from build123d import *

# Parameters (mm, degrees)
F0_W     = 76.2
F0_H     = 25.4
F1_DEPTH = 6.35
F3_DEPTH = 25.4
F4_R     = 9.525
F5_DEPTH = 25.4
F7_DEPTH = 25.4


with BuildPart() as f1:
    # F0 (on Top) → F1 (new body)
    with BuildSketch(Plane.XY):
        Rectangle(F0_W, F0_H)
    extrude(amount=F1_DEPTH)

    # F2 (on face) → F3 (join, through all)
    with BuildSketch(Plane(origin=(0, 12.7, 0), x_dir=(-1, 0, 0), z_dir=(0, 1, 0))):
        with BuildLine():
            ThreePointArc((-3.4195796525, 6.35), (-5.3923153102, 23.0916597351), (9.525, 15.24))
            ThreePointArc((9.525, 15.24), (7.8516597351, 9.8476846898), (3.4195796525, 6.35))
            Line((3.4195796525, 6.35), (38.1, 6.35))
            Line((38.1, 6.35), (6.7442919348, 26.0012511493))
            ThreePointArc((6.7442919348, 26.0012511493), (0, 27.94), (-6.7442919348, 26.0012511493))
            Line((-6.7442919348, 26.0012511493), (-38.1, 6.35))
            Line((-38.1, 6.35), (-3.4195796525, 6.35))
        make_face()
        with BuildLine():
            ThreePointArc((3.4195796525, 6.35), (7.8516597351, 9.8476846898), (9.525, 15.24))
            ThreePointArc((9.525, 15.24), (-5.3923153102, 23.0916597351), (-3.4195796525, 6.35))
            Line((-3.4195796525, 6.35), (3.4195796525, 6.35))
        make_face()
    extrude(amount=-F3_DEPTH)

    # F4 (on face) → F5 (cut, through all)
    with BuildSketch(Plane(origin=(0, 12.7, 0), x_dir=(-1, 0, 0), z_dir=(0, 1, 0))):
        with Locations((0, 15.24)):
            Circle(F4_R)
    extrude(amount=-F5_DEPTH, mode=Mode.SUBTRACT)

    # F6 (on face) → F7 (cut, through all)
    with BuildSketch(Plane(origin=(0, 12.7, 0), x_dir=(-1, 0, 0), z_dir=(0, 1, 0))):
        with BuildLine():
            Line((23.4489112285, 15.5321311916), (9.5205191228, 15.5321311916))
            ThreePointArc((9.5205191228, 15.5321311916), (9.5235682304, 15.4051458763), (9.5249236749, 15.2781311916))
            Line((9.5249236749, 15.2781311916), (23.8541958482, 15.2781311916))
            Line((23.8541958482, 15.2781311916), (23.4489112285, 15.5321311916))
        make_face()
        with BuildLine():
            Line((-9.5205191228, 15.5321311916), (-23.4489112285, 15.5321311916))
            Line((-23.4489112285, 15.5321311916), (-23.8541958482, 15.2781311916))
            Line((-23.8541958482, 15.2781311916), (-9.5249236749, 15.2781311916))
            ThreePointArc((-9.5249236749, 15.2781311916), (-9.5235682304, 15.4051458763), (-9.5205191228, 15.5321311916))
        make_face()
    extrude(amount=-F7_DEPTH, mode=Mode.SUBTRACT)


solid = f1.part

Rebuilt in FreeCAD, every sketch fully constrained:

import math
import FreeCAD as App
import Part
import Sketcher

V = App.Vector
Q = App.Units.Quantity

doc = App.newDocument("Part")
body = doc.addObject("PartDesign::Body", "Body")
body.AllowCompound = True

sketch1 = body.newObject("Sketcher::SketchObject", "Sketch")
sketch1.AttachmentSupport = (doc.getObject("XY_Plane"), [""])
sketch1.MapMode = "FlatFace"
sketch1.addGeometry(Part.LineSegment(V(-38.1, 12.7, 0), V(-38.1, -12.7, 0)), False)
sketch1.addGeometry(Part.LineSegment(V(-38.1, -12.7, 0), V(38.1, -12.7, 0)), False)
sketch1.addGeometry(Part.LineSegment(V(38.1, -12.7, 0), V(38.1, 12.7, 0)), False)
sketch1.addGeometry(Part.LineSegment(V(38.1, 12.7, 0), V(-38.1, 12.7, 0)), False)
sketch1.addConstraint(Sketcher.Constraint("Coincident", 0, 2, 1, 1))
sketch1.addConstraint(Sketcher.Constraint("Coincident", 1, 2, 2, 1))
sketch1.addConstraint(Sketcher.Constraint("Coincident", 2, 2, 3, 1))
sketch1.addConstraint(Sketcher.Constraint("Coincident", 3, 2, 0, 1))
sketch1.addConstraint(Sketcher.Constraint("Vertical", 0))
sketch1.addConstraint(Sketcher.Constraint("Horizontal", 1))
sketch1.addConstraint(Sketcher.Constraint("Vertical", 2))
sketch1.addConstraint(Sketcher.Constraint("Horizontal", 3))
sketch1.addConstraint(Sketcher.Constraint("Symmetric", 0, 2, 2, 2, -1, 1))
sketch1.addConstraint(Sketcher.Constraint("DistanceX", 1, 1, 1, 2, Q("3 in")))
sketch1.addConstraint(Sketcher.Constraint("DistanceY", 0, 2, 0, 1, Q("1 in")))
pad1 = body.newObject("PartDesign::Pad", "Pad")
pad1.Profile = sketch1
pad1.Length = Q("0.25 in")

sketch2 = body.newObject("Sketcher::SketchObject", "Sketch001")
sketch2.AttachmentSupport = (doc.getObject("XZ_Plane"), [""])
sketch2.MapMode = "FlatFace"
sketch2.AttachmentOffset = App.Placement(V(0, 0, -0.5 * 25.4), App.Rotation())
sketch2.addGeometry(Part.LineSegment(V(-38.1, 6.35, 0), V(-6.744292, 26.001251, 0)), False)
sketch2.addGeometry(Part.ArcOfCircle(Part.Circle(V(0, 15.24, 0), V(0, 0, 1), 12.7), math.radians(57.923803), math.radians(122.076197)), False)
sketch2.addGeometry(Part.LineSegment(V(6.744292, 26.001251, 0), V(38.1, 6.35, 0)), False)
sketch2.addGeometry(Part.LineSegment(V(38.1, 6.35, 0), V(-38.1, 6.35, 0)), False)
sketch2.addConstraint(Sketcher.Constraint("Tangent", 0, 2, 1, 2))
sketch2.addConstraint(Sketcher.Constraint("Tangent", 1, 1, 2, 1))
sketch2.addConstraint(Sketcher.Constraint("Coincident", 2, 2, 3, 1))
sketch2.addConstraint(Sketcher.Constraint("Coincident", 3, 2, 0, 1))
sketch2.addConstraint(Sketcher.Constraint("Horizontal", 3))
sketch2.addConstraint(Sketcher.Constraint("Symmetric", 0, 2, 1, 1, -2))
sketch2.addConstraint(Sketcher.Constraint("Radius", 1, Q("0.5 in")))
sketch2.addConstraint(Sketcher.Constraint("DistanceX", 3, 2, 3, 1, Q("3 in")))
sketch2.addConstraint(Sketcher.Constraint("DistanceY", -1, 1, 1, 3, Q("0.6 in")))
sketch2.addConstraint(Sketcher.Constraint("DistanceY", -1, 1, 2, 2, Q("0.25 in")))
pad2 = body.newObject("PartDesign::Pad", "Pad001")
pad2.Profile = sketch2
pad2.Length = Q("1 in")

sketch3 = body.newObject("Sketcher::SketchObject", "Sketch002")
sketch3.AttachmentSupport = (doc.getObject("XZ_Plane"), [""])
sketch3.MapMode = "FlatFace"
sketch3.AttachmentOffset = App.Placement(V(0, 0, -0.5 * 25.4), App.Rotation())
sketch3.addGeometry(Part.Circle(V(0, 15.24, 0), V(0, 0, 1), 9.525), False)
sketch3.addConstraint(Sketcher.Constraint("PointOnObject", 0, 3, -2))
sketch3.addConstraint(Sketcher.Constraint("Diameter", 0, Q("0.75 in")))
sketch3.addConstraint(Sketcher.Constraint("DistanceY", -1, 1, 0, 3, Q("0.6 in")))
pocket1 = body.newObject("PartDesign::Pocket", "Pocket")
pocket1.Profile = sketch3
pocket1.Type = "ThroughAll"
pocket1.Reversed = True

sketch4 = body.newObject("Sketcher::SketchObject", "Sketch003")
sketch4.AttachmentSupport = (doc.getObject("XZ_Plane"), [""])
sketch4.MapMode = "FlatFace"
sketch4.AttachmentOffset = App.Placement(V(0, 0, -0.5 * 25.4), App.Rotation())
sketch4.addGeometry(Part.LineSegment(V(-23.448911, 15.532131, 0), V(-9.520519, 15.532131, 0)), False)
sketch4.addGeometry(Part.ArcOfCircle(Part.Circle(V(0.000001, 15.24, 0), V(0, 0, 1), 9.525001), math.radians(178.242466), math.radians(179.770629)), False)
sketch4.addGeometry(Part.LineSegment(V(-9.524924, 15.278131, 0), V(-23.854196, 15.278131, 0)), False)
sketch4.addGeometry(Part.LineSegment(V(-23.854196, 15.278131, 0), V(-23.448911, 15.532131, 0)), False)
sketch4.addGeometry(Part.LineSegment(V(9.520519, 15.532131, 0), V(23.448911, 15.532131, 0)), False)
sketch4.addGeometry(Part.LineSegment(V(23.448911, 15.532131, 0), V(23.854196, 15.278131, 0)), False)
sketch4.addGeometry(Part.LineSegment(V(23.854196, 15.278131, 0), V(9.524924, 15.278131, 0)), False)
sketch4.addGeometry(Part.ArcOfCircle(Part.Circle(V(-0.000001, 15.24, 0), V(0, 0, 1), 9.525001), math.radians(0.229371), math.radians(1.757534)), False)
sketch4.addConstraint(Sketcher.Constraint("Coincident", 0, 2, 1, 1))
sketch4.addConstraint(Sketcher.Constraint("Coincident", 1, 2, 2, 1))
sketch4.addConstraint(Sketcher.Constraint("Coincident", 2, 2, 3, 1))
sketch4.addConstraint(Sketcher.Constraint("Coincident", 3, 2, 0, 1))
sketch4.addConstraint(Sketcher.Constraint("Coincident", 4, 2, 5, 1))
sketch4.addConstraint(Sketcher.Constraint("Coincident", 5, 2, 6, 1))
sketch4.addConstraint(Sketcher.Constraint("Coincident", 6, 2, 7, 1))
sketch4.addConstraint(Sketcher.Constraint("Coincident", 7, 2, 4, 1))
sketch4.addConstraint(Sketcher.Constraint("Horizontal", 0))
sketch4.addConstraint(Sketcher.Constraint("Horizontal", 2))
sketch4.addConstraint(Sketcher.Constraint("Horizontal", 4))
sketch4.addConstraint(Sketcher.Constraint("Horizontal", 6))
sketch4.addConstraint(Sketcher.Constraint("Coincident", 7, 3, 1, 3))
sketch4.addConstraint(Sketcher.Constraint("Equal", 1, 7))
sketch4.addConstraint(Sketcher.Constraint("Symmetric", 3, 2, 4, 2, -2))
sketch4.addConstraint(Sketcher.Constraint("Symmetric", 2, 2, 5, 2, -2))
sketch4.addConstraint(Sketcher.Constraint("PointOnObject", 1, 3, -2))
sketch4.addConstraint(Sketcher.Constraint("Radius", 1, Q("0.375 in")))
sketch4.addConstraint(Sketcher.Constraint("DistanceY", -1, 1, 1, 3, Q("0.6 in")))
sketch4.addConstraint(Sketcher.Constraint("DistanceY", 1, 2, 0, 2, Q("0.01 in")))
sketch4.addConstraint(Sketcher.Constraint("Distance", 3, Q("0.478301 mm")))
sketch4.addConstraint(Sketcher.Constraint("DistanceX", 0, 1, 0, 2, Q("13.928392 mm")))
sketch4.addConstraint(Sketcher.Constraint("DistanceX", 2, 2, 2, 1, Q("14.329272 mm")))
pocket2 = body.newObject("PartDesign::Pocket", "Pocket001")
pocket2.Profile = sketch4
pocket2.Type = "ThroughAll"
pocket2.Reversed = True

doc.recompute()
